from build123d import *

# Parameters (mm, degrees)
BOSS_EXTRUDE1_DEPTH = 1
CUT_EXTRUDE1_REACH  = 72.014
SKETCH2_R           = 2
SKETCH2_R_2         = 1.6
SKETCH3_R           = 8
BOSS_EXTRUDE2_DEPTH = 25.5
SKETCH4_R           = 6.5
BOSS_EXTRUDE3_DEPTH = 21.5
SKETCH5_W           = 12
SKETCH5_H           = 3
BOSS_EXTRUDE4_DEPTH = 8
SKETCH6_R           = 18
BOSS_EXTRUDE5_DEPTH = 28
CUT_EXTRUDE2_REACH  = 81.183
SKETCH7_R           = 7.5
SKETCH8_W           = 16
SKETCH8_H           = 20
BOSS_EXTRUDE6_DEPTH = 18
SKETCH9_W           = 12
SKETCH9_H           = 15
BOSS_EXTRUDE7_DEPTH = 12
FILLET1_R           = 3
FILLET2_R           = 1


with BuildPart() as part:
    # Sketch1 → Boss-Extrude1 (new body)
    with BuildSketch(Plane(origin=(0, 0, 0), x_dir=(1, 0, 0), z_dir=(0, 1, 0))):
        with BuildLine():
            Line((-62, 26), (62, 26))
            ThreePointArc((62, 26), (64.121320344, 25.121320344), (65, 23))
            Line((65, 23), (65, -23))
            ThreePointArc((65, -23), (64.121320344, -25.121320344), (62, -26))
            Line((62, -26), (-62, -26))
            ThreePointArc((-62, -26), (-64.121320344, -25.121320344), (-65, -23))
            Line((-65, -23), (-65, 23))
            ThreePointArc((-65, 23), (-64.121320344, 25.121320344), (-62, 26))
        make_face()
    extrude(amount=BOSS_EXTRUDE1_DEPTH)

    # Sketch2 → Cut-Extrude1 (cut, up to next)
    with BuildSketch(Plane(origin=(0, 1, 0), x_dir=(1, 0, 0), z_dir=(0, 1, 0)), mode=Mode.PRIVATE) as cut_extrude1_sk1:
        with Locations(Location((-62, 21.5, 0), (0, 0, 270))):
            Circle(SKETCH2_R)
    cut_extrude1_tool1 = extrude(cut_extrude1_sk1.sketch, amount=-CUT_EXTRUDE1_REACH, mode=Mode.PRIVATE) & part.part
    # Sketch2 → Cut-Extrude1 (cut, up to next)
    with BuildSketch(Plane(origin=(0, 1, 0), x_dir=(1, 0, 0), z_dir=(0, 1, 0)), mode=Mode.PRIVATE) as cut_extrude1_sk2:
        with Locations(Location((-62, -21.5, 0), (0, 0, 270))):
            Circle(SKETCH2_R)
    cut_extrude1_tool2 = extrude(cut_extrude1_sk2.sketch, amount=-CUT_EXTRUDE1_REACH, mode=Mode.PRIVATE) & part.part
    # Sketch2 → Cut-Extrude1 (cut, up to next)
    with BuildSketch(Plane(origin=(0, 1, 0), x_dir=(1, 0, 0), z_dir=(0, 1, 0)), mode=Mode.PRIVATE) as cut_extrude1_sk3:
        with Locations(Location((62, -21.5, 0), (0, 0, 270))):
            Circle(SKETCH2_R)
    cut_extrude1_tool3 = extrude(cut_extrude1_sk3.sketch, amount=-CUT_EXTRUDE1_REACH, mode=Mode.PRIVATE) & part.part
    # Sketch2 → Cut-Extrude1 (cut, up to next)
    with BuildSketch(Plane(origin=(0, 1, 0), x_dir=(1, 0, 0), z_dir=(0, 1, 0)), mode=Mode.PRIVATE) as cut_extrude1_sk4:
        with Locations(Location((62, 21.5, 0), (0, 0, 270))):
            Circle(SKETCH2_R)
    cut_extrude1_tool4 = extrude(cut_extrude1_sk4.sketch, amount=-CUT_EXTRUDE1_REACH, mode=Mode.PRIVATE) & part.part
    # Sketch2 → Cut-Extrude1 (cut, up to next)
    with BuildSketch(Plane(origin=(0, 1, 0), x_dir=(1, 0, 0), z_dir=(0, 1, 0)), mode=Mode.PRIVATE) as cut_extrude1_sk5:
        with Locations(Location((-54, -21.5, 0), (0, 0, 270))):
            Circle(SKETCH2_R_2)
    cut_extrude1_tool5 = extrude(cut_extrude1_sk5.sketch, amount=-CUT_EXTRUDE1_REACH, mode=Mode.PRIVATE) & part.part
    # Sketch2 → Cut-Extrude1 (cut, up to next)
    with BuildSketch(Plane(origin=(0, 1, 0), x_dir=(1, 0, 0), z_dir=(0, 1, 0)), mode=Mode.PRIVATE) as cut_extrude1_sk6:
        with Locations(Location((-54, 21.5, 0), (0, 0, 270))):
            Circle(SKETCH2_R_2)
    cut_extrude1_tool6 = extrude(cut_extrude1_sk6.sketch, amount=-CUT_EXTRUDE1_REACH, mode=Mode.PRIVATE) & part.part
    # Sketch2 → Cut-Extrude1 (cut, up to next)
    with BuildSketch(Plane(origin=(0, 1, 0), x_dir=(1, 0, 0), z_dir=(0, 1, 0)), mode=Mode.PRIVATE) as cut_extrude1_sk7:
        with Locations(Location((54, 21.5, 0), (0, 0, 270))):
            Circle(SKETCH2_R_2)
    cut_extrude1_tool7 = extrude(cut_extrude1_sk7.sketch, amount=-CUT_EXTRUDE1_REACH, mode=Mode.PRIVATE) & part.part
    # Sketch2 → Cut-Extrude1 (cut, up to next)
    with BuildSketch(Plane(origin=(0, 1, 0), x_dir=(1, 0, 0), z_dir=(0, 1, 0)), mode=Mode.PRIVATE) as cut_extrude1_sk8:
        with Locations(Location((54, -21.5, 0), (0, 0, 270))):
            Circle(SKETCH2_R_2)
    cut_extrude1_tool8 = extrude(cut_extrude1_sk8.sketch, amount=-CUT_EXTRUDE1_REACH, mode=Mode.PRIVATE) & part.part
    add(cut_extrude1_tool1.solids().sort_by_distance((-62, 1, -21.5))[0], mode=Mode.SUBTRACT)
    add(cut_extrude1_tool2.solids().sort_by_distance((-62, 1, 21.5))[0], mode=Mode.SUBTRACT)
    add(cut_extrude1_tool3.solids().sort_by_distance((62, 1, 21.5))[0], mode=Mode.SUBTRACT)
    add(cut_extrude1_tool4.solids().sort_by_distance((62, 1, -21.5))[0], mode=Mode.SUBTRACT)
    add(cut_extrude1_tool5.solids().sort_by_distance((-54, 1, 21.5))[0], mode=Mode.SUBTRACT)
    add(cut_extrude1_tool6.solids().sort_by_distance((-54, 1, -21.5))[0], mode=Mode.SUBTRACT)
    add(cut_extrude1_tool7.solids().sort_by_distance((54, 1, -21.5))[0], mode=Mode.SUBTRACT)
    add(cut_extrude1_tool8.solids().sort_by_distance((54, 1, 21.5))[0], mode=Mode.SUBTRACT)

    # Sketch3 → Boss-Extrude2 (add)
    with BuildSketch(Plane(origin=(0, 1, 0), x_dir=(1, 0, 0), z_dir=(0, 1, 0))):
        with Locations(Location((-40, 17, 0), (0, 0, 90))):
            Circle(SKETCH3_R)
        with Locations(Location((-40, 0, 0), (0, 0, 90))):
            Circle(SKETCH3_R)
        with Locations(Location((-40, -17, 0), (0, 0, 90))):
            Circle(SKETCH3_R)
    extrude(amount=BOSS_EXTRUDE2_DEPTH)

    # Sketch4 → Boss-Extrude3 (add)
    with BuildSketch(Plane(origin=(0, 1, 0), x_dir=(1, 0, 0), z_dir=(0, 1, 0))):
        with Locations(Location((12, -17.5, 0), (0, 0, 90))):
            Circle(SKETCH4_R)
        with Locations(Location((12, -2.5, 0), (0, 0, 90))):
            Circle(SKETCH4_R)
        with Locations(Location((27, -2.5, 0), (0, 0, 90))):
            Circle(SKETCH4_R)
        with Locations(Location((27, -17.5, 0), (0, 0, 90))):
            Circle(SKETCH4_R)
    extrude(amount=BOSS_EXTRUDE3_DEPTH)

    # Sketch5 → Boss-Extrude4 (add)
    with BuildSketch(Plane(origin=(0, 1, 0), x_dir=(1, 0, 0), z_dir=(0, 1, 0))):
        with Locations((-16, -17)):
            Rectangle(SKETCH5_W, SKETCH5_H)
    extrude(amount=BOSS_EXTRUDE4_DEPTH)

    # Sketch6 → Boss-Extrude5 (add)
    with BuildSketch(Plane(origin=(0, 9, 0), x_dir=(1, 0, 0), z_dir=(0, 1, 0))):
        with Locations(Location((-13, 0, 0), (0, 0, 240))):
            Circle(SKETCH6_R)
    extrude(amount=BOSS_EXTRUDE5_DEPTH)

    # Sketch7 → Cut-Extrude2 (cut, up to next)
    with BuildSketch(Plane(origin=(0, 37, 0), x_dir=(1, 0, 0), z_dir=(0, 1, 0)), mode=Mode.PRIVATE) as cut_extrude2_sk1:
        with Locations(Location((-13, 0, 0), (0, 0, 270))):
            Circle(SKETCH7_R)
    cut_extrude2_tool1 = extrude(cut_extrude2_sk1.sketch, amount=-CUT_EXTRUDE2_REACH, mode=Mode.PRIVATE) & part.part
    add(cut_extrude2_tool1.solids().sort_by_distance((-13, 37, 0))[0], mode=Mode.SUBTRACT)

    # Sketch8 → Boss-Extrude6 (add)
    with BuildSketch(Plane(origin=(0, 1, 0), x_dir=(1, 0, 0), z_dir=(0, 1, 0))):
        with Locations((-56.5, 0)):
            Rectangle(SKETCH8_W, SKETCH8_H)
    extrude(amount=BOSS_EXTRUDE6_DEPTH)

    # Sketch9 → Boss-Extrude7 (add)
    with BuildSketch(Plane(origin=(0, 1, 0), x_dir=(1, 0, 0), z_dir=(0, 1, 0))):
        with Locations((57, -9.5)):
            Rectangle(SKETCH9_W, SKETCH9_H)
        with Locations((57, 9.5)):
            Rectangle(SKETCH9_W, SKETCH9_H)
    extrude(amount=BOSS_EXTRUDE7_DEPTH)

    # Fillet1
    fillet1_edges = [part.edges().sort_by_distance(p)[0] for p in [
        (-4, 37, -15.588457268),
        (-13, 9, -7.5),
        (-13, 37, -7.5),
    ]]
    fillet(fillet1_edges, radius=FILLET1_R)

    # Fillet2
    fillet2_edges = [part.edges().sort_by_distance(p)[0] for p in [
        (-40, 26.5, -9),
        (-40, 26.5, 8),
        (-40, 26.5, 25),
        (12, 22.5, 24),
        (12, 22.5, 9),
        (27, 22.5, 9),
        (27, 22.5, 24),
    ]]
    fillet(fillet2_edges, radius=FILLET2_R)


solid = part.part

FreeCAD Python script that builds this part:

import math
import FreeCAD as App
import Part
import Sketcher

V = App.Vector
Q = App.Units.Quantity


def edges_at(feature, points):
    """Names of the edges that pass closest to the given points."""
    edges = feature.Shape.Edges
    near = lambda p: min(range(len(edges)), key=lambda i: edges[i].distToShape(Part.Vertex(*p))[0])
    return sorted({f"Edge{near(p) + 1}" for p in points})

doc = App.newDocument("Part")
body = doc.addObject("PartDesign::Body", "Body")

# Sketch on XZ plane
sketch1 = body.newObject("Sketcher::SketchObject", "Sketch")
sketch1.AttachmentSupport = (doc.getObject("XZ_Plane"), [""])
sketch1.MapMode = "FlatFace"
sketch1.addGeometry([
    Part.LineSegment(V(62, -26, 0), V(-62, -26, 0)),  # 0
    Part.ArcOfCircle(Part.Circle(V(-62, -23, 0), V(0, 0, 1), 3), math.radians(180), math.radians(270)),  # 1
    Part.LineSegment(V(-65, -23, 0), V(-65, 23, 0)),  # 2
    Part.ArcOfCircle(Part.Circle(V(-62, 23, 0), V(0, 0, 1), 3), math.radians(90), math.radians(180)),  # 3
    Part.LineSegment(V(-62, 26, 0), V(62, 26, 0)),  # 4
    Part.ArcOfCircle(Part.Circle(V(62, 23, 0), V(0, 0, 1), 3), math.radians(0), math.radians(90)),  # 5
    Part.LineSegment(V(65, 23, 0), V(65, -23, 0)),  # 6
    Part.ArcOfCircle(Part.Circle(V(62, -23, 0), V(0, 0, 1), 3), math.radians(-90), math.radians(0)),  # 7
], False)
sketch1.addConstraint([
    Sketcher.Constraint("Tangent", 0, 2, 1, 2),
    Sketcher.Constraint("Tangent", 1, 1, 2, 1),
    Sketcher.Constraint("Tangent", 2, 2, 3, 2),
    Sketcher.Constraint("Tangent", 3, 1, 4, 1),
    Sketcher.Constraint("Tangent", 4, 2, 5, 2),
    Sketcher.Constraint("Tangent", 5, 1, 6, 1),
    Sketcher.Constraint("Tangent", 6, 2, 7, 2),
    Sketcher.Constraint("Tangent", 7, 1, 0, 1),
    Sketcher.Constraint("Horizontal", 0),
    Sketcher.Constraint("Vertical", 2),
    Sketcher.Constraint("Horizontal", 4),
    Sketcher.Constraint("Vertical", 6),
    Sketcher.Constraint("Equal", 1, 3),
    Sketcher.Constraint("Equal", 3, 5),
    Sketcher.Constraint("Equal", 5, 7),
    Sketcher.Constraint("Symmetric", 1, 3, 5, 3, -1, 1),
    Sketcher.Constraint("Radius", 1, Q("3 mm")),
    Sketcher.Constraint("DistanceX", 0, 2, 0, 1, Q("124 mm")),
    Sketcher.Constraint("DistanceY", 2, 1, 2, 2, Q("46 mm")),
])
pad1 = body.newObject("PartDesign::Pad", "Pad")
pad1.Profile = sketch1
pad1.Length = 1
pad1.Reversed = True

# Sketch on XZ plane
sketch2 = body.newObject("Sketcher::SketchObject", "Sketch001")
sketch2.AttachmentSupport = (doc.getObject("XZ_Plane"), [""])
sketch2.MapMode = "FlatFace"
sketch2.AttachmentOffset = App.Placement(V(0, 0, -1), App.Rotation())
sketch2.addGeometry(Part.Circle(V(-62, -21.5, 0), V(0, 0, 1), 2), False)
sketch2.addConstraint([
    Sketcher.Constraint("Diameter", 0, Q("4 mm")),
    Sketcher.Constraint("DistanceX", 0, 3, -1, 1, Q("62 mm")),
    Sketcher.Constraint("DistanceY", 0, 3, -1, 1, Q("21.5 mm")),
])
pocket1 = body.newObject("PartDesign::Pocket", "Pocket")
pocket1.Profile = sketch2
pocket1.Type = "UpToFirst"
pocket1.Reversed = True

# Sketch on XZ plane
sketch3 = body.newObject("Sketcher::SketchObject", "Sketch002")
sketch3.AttachmentSupport = (doc.getObject("XZ_Plane"), [""])
sketch3.MapMode = "FlatFace"
sketch3.AttachmentOffset = App.Placement(V(0, 0, -1), App.Rotation())
sketch3.addGeometry(Part.Circle(V(-62, 21.5, 0), V(0, 0, 1), 2), False)
sketch3.addConstraint([
    Sketcher.Constraint("Diameter", 0, Q("4 mm")),
    Sketcher.Constraint("DistanceX", 0, 3, -1, 1, Q("62 mm")),
    Sketcher.Constraint("DistanceY", -1, 1, 0, 3, Q("21.5 mm")),
])
pocket2 = body.newObject("PartDesign::Pocket", "Pocket001")
pocket2.Profile = sketch3
pocket2.Type = "UpToFirst"
pocket2.Reversed = True

# Sketch on XZ plane
sketch4 = body.newObject("Sketcher::SketchObject", "Sketch003")
sketch4.AttachmentSupport = (doc.getObject("XZ_Plane"), [""])
sketch4.MapMode = "FlatFace"
sketch4.AttachmentOffset = App.Placement(V(0, 0, -1), App.Rotation())
sketch4.addGeometry(Part.Circle(V(62, 21.5, 0), V(0, 0, 1), 2), False)
sketch4.addConstraint([
    Sketcher.Constraint("Diameter", 0, Q("4 mm")),
    Sketcher.Constraint("DistanceX", -1, 1, 0, 3, Q("62 mm")),
    Sketcher.Constraint("DistanceY", -1, 1, 0, 3, Q("21.5 mm")),
])
pocket3 = body.newObject("PartDesign::Pocket", "Pocket002")
pocket3.Profile = sketch4
pocket3.Type = "UpToFirst"
pocket3.Reversed = True

# Sketch on XZ plane
sketch5 = body.newObject("Sketcher::SketchObject", "Sketch004")
sketch5.AttachmentSupport = (doc.getObject("XZ_Plane"), [""])
sketch5.MapMode = "FlatFace"
sketch5.AttachmentOffset = App.Placement(V(0, 0, -1), App.Rotation())
sketch5.addGeometry(Part.Circle(V(62, -21.5, 0), V(0, 0, 1), 2), False)
sketch5.addConstraint([
    Sketcher.Constraint("Diameter", 0, Q("4 mm")),
    Sketcher.Constraint("DistanceX", -1, 1, 0, 3, Q("62 mm")),
    Sketcher.Constraint("DistanceY", 0, 3, -1, 1, Q("21.5 mm")),
])
pocket4 = body.newObject("PartDesign::Pocket", "Pocket003")
pocket4.Profile = sketch5
pocket4.Type = "UpToFirst"
pocket4.Reversed = True

# Sketch on XZ plane
sketch6 = body.newObject("Sketcher::SketchObject", "Sketch005")
sketch6.AttachmentSupport = (doc.getObject("XZ_Plane"), [""])
sketch6.MapMode = "FlatFace"
sketch6.AttachmentOffset = App.Placement(V(0, 0, -1), App.Rotation())
sketch6.addGeometry(Part.Circle(V(-54, 21.5, 0), V(0, 0, 1), 1.6), False)
sketch6.addConstraint([
    Sketcher.Constraint("Diameter", 0, Q("3.2 mm")),
    Sketcher.Constraint("DistanceX", 0, 3, -1, 1, Q("54 mm")),
    Sketcher.Constraint("DistanceY", -1, 1, 0, 3, Q("21.5 mm")),
])
pocket5 = body.newObject("PartDesign::Pocket", "Pocket004")
pocket5.Profile = sketch6
pocket5.Type = "UpToFirst"
pocket5.Reversed = True

# Sketch on XZ plane
sketch7 = body.newObject("Sketcher::SketchObject", "Sketch006")
sketch7.AttachmentSupport = (doc.getObject("XZ_Plane"), [""])
sketch7.MapMode = "FlatFace"
sketch7.AttachmentOffset = App.Placement(V(0, 0, -1), App.Rotation())
sketch7.addGeometry(Part.Circle(V(-54, -21.5, 0), V(0, 0, 1), 1.6), False)
sketch7.addConstraint([
    Sketcher.Constraint("Diameter", 0, Q("3.2 mm")),
    Sketcher.Constraint("DistanceX", 0, 3, -1, 1, Q("54 mm")),
    Sketcher.Constraint("DistanceY", 0, 3, -1, 1, Q("21.5 mm")),
])
pocket6 = body.newObject("PartDesign::Pocket", "Pocket005")
pocket6.Profile = sketch7
pocket6.Type = "UpToFirst"
pocket6.Reversed = True

# Sketch on XZ plane
sketch8 = body.newObject("Sketcher::SketchObject", "Sketch007")
sketch8.AttachmentSupport = (doc.getObject("XZ_Plane"), [""])
sketch8.MapMode = "FlatFace"
sketch8.AttachmentOffset = App.Placement(V(0, 0, -1), App.Rotation())
sketch8.addGeometry(Part.Circle(V(54, -21.5, 0), V(0, 0, 1), 1.6), False)
sketch8.addConstraint([
    Sketcher.Constraint("Diameter", 0, Q("3.2 mm")),
    Sketcher.Constraint("DistanceX", -1, 1, 0, 3, Q("54 mm")),
    Sketcher.Constraint("DistanceY", 0, 3, -1, 1, Q("21.5 mm")),
])
pocket7 = body.newObject("PartDesign::Pocket", "Pocket006")
pocket7.Profile = sketch8
pocket7.Type = "UpToFirst"
pocket7.Reversed = True

# Sketch on XZ plane
sketch9 = body.newObject("Sketcher::SketchObject", "Sketch008")
sketch9.AttachmentSupport = (doc.getObject("XZ_Plane"), [""])
sketch9.MapMode = "FlatFace"
sketch9.AttachmentOffset = App.Placement(V(0, 0, -1), App.Rotation())
sketch9.addGeometry(Part.Circle(V(54, 21.5, 0), V(0, 0, 1), 1.6), False)
sketch9.addConstraint([
    Sketcher.Constraint("Diameter", 0, Q("3.2 mm")),
    Sketcher.Constraint("DistanceX", -1, 1, 0, 3, Q("54 mm")),
    Sketcher.Constraint("DistanceY", -1, 1, 0, 3, Q("21.5 mm")),
])
pocket8 = body.newObject("PartDesign::Pocket", "Pocket007")
pocket8.Profile = sketch9
pocket8.Type = "UpToFirst"
pocket8.Reversed = True

# Sketch on XZ plane
sketch10 = body.newObject("Sketcher::SketchObject", "Sketch009")
sketch10.AttachmentSupport = (doc.getObject("XZ_Plane"), [""])
sketch10.MapMode = "FlatFace"
sketch10.AttachmentOffset = App.Placement(V(0, 0, -1), App.Rotation())
sketch10.addGeometry([
    Part.Circle(V(-40, -17, 0), V(0, 0, 1), 8),
    Part.Circle(V(-40, 0, 0), V(0, 0, 1), 8),
    Part.Circle(V(-40, 17, 0), V(0, 0, 1), 8),
], False)
sketch10.addConstraint([
    Sketcher.Constraint("Equal", 0, 1),
    Sketcher.Constraint("Equal", 1, 2),
    Sketcher.Constraint("Symmetric", 0, 3, 2, 3, -1),
    Sketcher.Constraint("PointOnObject", 1, 3, -1),
    Sketcher.Constraint("Vertical", 0, 3, 1, 3),
    Sketcher.Constraint("Diameter", 0, Q("16 mm")),
    Sketcher.Constraint("DistanceX", 0, 3, -1, 1, Q("40 mm")),
    Sketcher.Constraint("DistanceY", 0, 3, -1, 1, Q("17 mm")),
])
pad2 = body.newObject("PartDesign::Pad", "Pad001")
pad2.Profile = sketch10
pad2.Length = 25.5
pad2.Reversed = True

# Sketch on XZ plane
sketch11 = body.newObject("Sketcher::SketchObject", "Sketch010")
sketch11.AttachmentSupport = (doc.getObject("XZ_Plane"), [""])
sketch11.MapMode = "FlatFace"
sketch11.AttachmentOffset = App.Placement(V(0, 0, -1), App.Rotation())
sketch11.addGeometry([
    Part.Circle(V(12, 18, 0), V(0, 0, 1), 6),
    Part.Circle(V(12, 2, 0), V(0, 0, 1), 6),
    Part.Circle(V(27, 2, 0), V(0, 0, 1), 6),
    Part.Circle(V(27, 18, 0), V(0, 0, 1), 6),
], False)
sketch11.addConstraint([
    Sketcher.Constraint("Equal", 0, 1),
    Sketcher.Constraint("Equal", 1, 2),
    Sketcher.Constraint("Equal", 2, 3),
    Sketcher.Constraint("Horizontal", 1, 3, 2, 3),
    Sketcher.Constraint("Horizontal", 0, 3, 3, 3),
    Sketcher.Constraint("Vertical", 0, 3, 1, 3),
    Sketcher.Constraint("Vertical", 2, 3, 3, 3),
    Sketcher.Constraint("Diameter", 0, Q("13 mm")),
    Sketcher.Constraint("DistanceX", -1, 1, 0, 3, Q("12 mm")),
    Sketcher.Constraint("DistanceX", -1, 1, 2, 3, Q("27 mm")),
    Sketcher.Constraint("DistanceY", 1, 3, 0, 3, Q("15 mm")),
    Sketcher.Constraint("DistanceY", -1, 1, 0, 3, Q("17.5 mm")),
])
pad3 = body.newObject("PartDesign::Pad", "Pad002")
pad3.Profile = sketch11
pad3.Length = 21.5
pad3.Reversed = True

# Sketch on XZ plane
sketch12 = body.newObject("Sketcher::SketchObject", "Sketch011")
sketch12.AttachmentSupport = (doc.getObject("XZ_Plane"), [""])
sketch12.MapMode = "FlatFace"
sketch12.AttachmentOffset = App.Placement(V(0, 0, -1), App.Rotation())
sketch12.addGeometry([
    Part.LineSegment(V(-22, 15.5, 0), V(-22, 18.5, 0)),
    Part.LineSegment(V(-22, 18.5, 0), V(-10, 18.5, 0)),
    Part.LineSegment(V(-10, 18.5, 0), V(-10, 15.5, 0)),
    Part.LineSegment(V(-10, 15.5, 0), V(-22, 15.5, 0)),
], False)
sketch12.addConstraint([
    Sketcher.Constraint("Coincident", 0, 2, 1, 1),
    Sketcher.Constraint("Coincident", 1, 2, 2, 1),
    Sketcher.Constraint("Coincident", 2, 2, 3, 1),
    Sketcher.Constraint("Coincident", 3, 2, 0, 1),
    Sketcher.Constraint("Vertical", 0),
    Sketcher.Constraint("Horizontal", 1),
    Sketcher.Constraint("Vertical", 2),
    Sketcher.Constraint("Horizontal", 3),
    Sketcher.Constraint("DistanceX", 1, 1, 1, 2, Q("12 mm")),
    Sketcher.Constraint("DistanceY", 0, 1, 0, 2, Q("3 mm")),
    Sketcher.Constraint("DistanceX", 0, 2, -1, 1, Q("22 mm")),
    Sketcher.Constraint("DistanceY", -1, 1, 0, 2, Q("18.5 mm")),
])
pad4 = body.newObject("PartDesign::Pad", "Pad003")
pad4.Profile = sketch12
pad4.Length = 8
pad4.Reversed = True

# Sketch on XZ plane
sketch13 = body.newObject("Sketcher::SketchObject", "Sketch012")
sketch13.AttachmentSupport = (doc.getObject("XZ_Plane"), [""])
sketch13.MapMode = "FlatFace"
sketch13.AttachmentOffset = App.Placement(V(0, 0, -9), App.Rotation())
sketch13.addGeometry(Part.Circle(V(-13, 0, 0), V(0, 0, 1), 18), False)
sketch13.addConstraint([
    Sketcher.Constraint("PointOnObject", 0, 3, -1),
    Sketcher.Constraint("Diameter", 0, Q("36 mm")),
    Sketcher.Constraint("DistanceX", 0, 3, -1, 1, Q("13 mm")),
])
pad5 = body.newObject("PartDesign::Pad", "Pad004")
pad5.Profile = sketch13
pad5.Length = 28
pad5.Reversed = True

# Sketch on XZ plane
sketch14 = body.newObject("Sketcher::SketchObject", "Sketch013")
sketch14.AttachmentSupport = (doc.getObject("XZ_Plane"), [""])
sketch14.MapMode = "FlatFace"
sketch14.AttachmentOffset = App.Placement(V(0, 0, -37), App.Rotation())
sketch14.addGeometry(Part.Circle(V(-13, 0, 0), V(0, 0, 1), 8), False)
sketch14.addConstraint([
    Sketcher.Constraint("PointOnObject", 0, 3, -1),
    Sketcher.Constraint("Diameter", 0, Q("15 mm")),
    Sketcher.Constraint("DistanceX", 0, 3, -1, 1, Q("13 mm")),
])
pocket9 = body.newObject("PartDesign::Pocket", "Pocket008")
pocket9.Profile = sketch14
pocket9.Type = "UpToFirst"
pocket9.Reversed = True

# Sketch on XZ plane
sketch15 = body.newObject("Sketcher::SketchObject", "Sketch014")
sketch15.AttachmentSupport = (doc.getObject("XZ_Plane"), [""])
sketch15.MapMode = "FlatFace"
sketch15.AttachmentOffset = App.Placement(V(0, 0, -1), App.Rotation())
sketch15.addGeometry([
    Part.LineSegment(V(-64, -10, 0), V(-64, 10, 0)),
    Part.LineSegment(V(-64, 10, 0), V(-48, 10, 0)),
    Part.LineSegment(V(-48, 10, 0), V(-48, -10, 0)),
    Part.LineSegment(V(-48, -10, 0), V(-64, -10, 0)),
], False)
sketch15.addConstraint([
    Sketcher.Constraint("Coincident", 0, 2, 1, 1),
    Sketcher.Constraint("Coincident", 1, 2, 2, 1),
    Sketcher.Constraint("Coincident", 2, 2, 3, 1),
    Sketcher.Constraint("Coincident", 3, 2, 0, 1),
    Sketcher.Constraint("Vertical", 0),
    Sketcher.Constraint("Horizontal", 1),
    Sketcher.Constraint("Vertical", 2),
    Sketcher.Constraint("Horizontal", 3),
    Sketcher.Constraint("DistanceX", 1, 1, 1, 2, Q("16 mm")),
    Sketcher.Constraint("DistanceY", 0, 1, 0, 2, Q("20 mm")),
    Sketcher.Constraint("DistanceY", -1, 1, 0, 2, Q("10 mm")),
    Sketcher.Constraint("DistanceX", 0, 2, -1, 1, Q("64.5 mm")),
])
pad6 = body.newObject("PartDesign::Pad", "Pad005")
pad6.Profile = sketch15
pad6.Length = 18
pad6.Reversed = True

# Sketch on XZ plane
sketch16 = body.newObject("Sketcher::SketchObject", "Sketch015")
sketch16.AttachmentSupport = (doc.getObject("XZ_Plane"), [""])
sketch16.MapMode = "FlatFace"
sketch16.AttachmentOffset = App.Placement(V(0, 0, -1), App.Rotation())
sketch16.addGeometry([
    Part.LineSegment(V(51, 2, 0), V(51, 17, 0)),  # 0
    Part.LineSegment(V(51, 17, 0), V(63, 17, 0)),  # 1
    Part.LineSegment(V(63, 17, 0), V(63, 2, 0)),  # 2
    Part.LineSegment(V(63, 2, 0), V(51, 2, 0)),  # 3
    Part.LineSegment(V(51, -17, 0), V(51, -2, 0)),  # 4
    Part.LineSegment(V(51, -2, 0), V(63, -2, 0)),  # 5
    Part.LineSegment(V(63, -2, 0), V(63, -17, 0)),  # 6
    Part.LineSegment(V(63, -17, 0), V(51, -17, 0)),  # 7
], False)
sketch16.addConstraint([
    Sketcher.Constraint("Coincident", 0, 2, 1, 1),
    Sketcher.Constraint("Coincident", 1, 2, 2, 1),
    Sketcher.Constraint("Coincident", 2, 2, 3, 1),
    Sketcher.Constraint("Coincident", 3, 2, 0, 1),
    Sketcher.Constraint("Coincident", 4, 2, 5, 1),
    Sketcher.Constraint("Coincident", 5, 2, 6, 1),
    Sketcher.Constraint("Coincident", 6, 2, 7, 1),
    Sketcher.Constraint("Coincident", 7, 2, 4, 1),
    Sketcher.Constraint("Vertical", 0),
    Sketcher.Constraint("Horizontal", 1),
    Sketcher.Constraint("Vertical", 2),
    Sketcher.Constraint("Horizontal", 3),
    Sketcher.Constraint("Vertical", 4),
    Sketcher.Constraint("Horizontal", 5),
    Sketcher.Constraint("Vertical", 6),
    Sketcher.Constraint("Horizontal", 7),
    Sketcher.Constraint("Symmetric", 3, 2, 4, 2, -1),
    Sketcher.Constraint("Symmetric", 1, 2, 6, 2, -1),
    Sketcher.Constraint("DistanceX", 1, 1, 1, 2, Q("12 mm")),
    Sketcher.Constraint("DistanceY", 0, 1, 0, 2, Q("15 mm")),
    Sketcher.Constraint("DistanceX", -1, 1, 0, 2, Q("51 mm")),
    Sketcher.Constraint("DistanceY", -1, 1, 0, 2, Q("17 mm")),
])
pad7 = body.newObject("PartDesign::Pad", "Pad006")
pad7.Profile = sketch16
pad7.Length = 12
pad7.Reversed = True
doc.recompute()

fillet = body.newObject("PartDesign::Fillet", "Fillet")
fillet.Base = (pad7, edges_at(pad7, [(-4, 37, -15.588), (-13, 9, -7.5), (-13, 37, -7.5)]))
fillet.Radius = 3
doc.recompute()

fillet2 = body.newObject("PartDesign::Fillet", "Fillet001")
fillet2.Base = (fillet, edges_at(fillet, [
    (-40, 26.5, -9),
    (-40, 26.5, 8),
    (-40, 26.5, 25),
    (12, 22.5, 24),
    (12, 22.5, 9),
    (27, 22.5, 9),
    (27, 22.5, 24),
]))
fillet2.Radius = 1

doc.recompute()
